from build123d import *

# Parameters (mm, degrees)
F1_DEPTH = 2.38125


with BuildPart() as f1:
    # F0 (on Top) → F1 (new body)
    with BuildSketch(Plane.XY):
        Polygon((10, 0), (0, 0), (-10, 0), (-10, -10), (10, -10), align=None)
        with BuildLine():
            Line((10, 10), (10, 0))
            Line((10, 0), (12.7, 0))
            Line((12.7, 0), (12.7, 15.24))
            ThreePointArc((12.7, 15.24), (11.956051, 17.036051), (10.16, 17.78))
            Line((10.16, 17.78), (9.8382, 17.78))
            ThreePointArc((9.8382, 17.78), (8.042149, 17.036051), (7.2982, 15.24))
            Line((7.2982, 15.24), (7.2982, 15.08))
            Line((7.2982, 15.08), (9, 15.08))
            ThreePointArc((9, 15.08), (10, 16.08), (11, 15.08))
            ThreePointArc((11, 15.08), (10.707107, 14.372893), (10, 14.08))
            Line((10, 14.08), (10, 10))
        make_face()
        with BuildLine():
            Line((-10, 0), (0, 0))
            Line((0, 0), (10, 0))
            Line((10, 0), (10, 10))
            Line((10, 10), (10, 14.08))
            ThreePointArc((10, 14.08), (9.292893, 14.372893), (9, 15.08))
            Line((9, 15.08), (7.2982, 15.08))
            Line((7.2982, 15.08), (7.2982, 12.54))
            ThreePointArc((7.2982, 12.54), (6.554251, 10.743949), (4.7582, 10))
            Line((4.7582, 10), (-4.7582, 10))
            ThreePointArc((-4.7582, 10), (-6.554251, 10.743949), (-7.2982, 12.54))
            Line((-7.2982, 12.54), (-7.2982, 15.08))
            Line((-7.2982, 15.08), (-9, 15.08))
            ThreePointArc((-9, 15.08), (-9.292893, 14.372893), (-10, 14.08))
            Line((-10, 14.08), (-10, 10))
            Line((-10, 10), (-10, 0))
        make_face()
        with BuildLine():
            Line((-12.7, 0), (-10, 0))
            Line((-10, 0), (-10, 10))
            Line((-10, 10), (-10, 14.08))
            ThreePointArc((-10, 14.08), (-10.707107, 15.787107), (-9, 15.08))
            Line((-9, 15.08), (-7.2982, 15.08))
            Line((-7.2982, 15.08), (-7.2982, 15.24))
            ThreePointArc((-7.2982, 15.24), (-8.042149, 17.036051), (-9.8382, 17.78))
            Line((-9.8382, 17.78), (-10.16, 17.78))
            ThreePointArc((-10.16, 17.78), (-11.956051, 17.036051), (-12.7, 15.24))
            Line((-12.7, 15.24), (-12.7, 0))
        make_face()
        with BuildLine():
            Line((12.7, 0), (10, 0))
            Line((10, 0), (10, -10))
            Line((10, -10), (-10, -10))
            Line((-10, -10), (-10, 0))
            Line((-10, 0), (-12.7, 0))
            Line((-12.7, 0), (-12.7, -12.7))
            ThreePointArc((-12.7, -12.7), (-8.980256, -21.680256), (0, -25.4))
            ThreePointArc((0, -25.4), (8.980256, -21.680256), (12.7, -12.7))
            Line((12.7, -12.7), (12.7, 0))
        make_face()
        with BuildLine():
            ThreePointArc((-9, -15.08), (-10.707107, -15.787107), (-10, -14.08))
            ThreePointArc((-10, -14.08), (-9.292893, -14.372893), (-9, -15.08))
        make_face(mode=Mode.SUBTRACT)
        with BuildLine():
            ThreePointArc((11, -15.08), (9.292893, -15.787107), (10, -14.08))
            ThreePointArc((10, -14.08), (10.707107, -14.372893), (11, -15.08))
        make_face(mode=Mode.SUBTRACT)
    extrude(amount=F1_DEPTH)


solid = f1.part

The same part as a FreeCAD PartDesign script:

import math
import FreeCAD as App
import Part
import Sketcher
Q = App.Units.Quantity

doc = App.newDocument("Part")
body = doc.addObject("PartDesign::Body", "Body")

sketch1 = doc.addObject("Sketcher::SketchObject", "Sketch")
body.addObject(sketch1)
sketch1.AttachmentSupport = (doc.XY_Plane, [""])
sketch1.MapMode = "FlatFace"
sketch1.addGeometry([
    Part.ArcOfCircle(Part.Circle(App.Vector(10.16, 15.24, 0), App.Vector(0, 0, 1), 2.54), math.radians(0), math.radians(90)),
    Part.LineSegment(App.Vector(10.16, 17.78, 0), App.Vector(9.84, 17.78, 0)),
    Part.ArcOfCircle(Part.Circle(App.Vector(9.84, 15.24, 0), App.Vector(0, 0, 1), 2.54), math.radians(90), math.radians(180)),
    Part.LineSegment(App.Vector(7.3, 15.24, 0), App.Vector(7.3, 12.54, 0)),
    Part.ArcOfCircle(Part.Circle(App.Vector(4.76, 12.54, 0), App.Vector(0, 0, 1), 2.54), math.radians(-90), math.radians(0)),
    Part.LineSegment(App.Vector(4.76, 10, 0), App.Vector(-4.76, 10, 0)),
    Part.ArcOfCircle(Part.Circle(App.Vector(-4.76, 12.54, 0), App.Vector(0, 0, 1), 2.54), math.radians(-180), math.radians(-90)),
    Part.LineSegment(App.Vector(-7.3, 12.54, 0), App.Vector(-7.3, 15.24, 0)),
    Part.ArcOfCircle(Part.Circle(App.Vector(-9.84, 15.24, 0), App.Vector(0, 0, 1), 2.54), math.radians(0), math.radians(90)),
    Part.LineSegment(App.Vector(-9.84, 17.78, 0), App.Vector(-10.16, 17.78, 0)),
    Part.ArcOfCircle(Part.Circle(App.Vector(-10.16, 15.24, 0), App.Vector(0, 0, 1), 2.54), math.radians(90), math.radians(180)),
    Part.LineSegment(App.Vector(-12.7, 15.24, 0), App.Vector(-12.7, -12.7, 0)),
    Part.ArcOfCircle(Part.Circle(App.Vector(0, -12.7, 0), App.Vector(0, 0, 1), 12.7), math.radians(-180), math.radians(-90)),
    Part.ArcOfCircle(Part.Circle(App.Vector(0, -12.7, 0), App.Vector(0, 0, 1), 12.7), math.radians(-90), math.radians(0)),
    Part.LineSegment(App.Vector(12.7, -12.7, 0), App.Vector(12.7, 15.24, 0)),
    Part.ArcOfCircle(Part.Circle(App.Vector(-10, -15.08, 0), App.Vector(0, 0, 1), 1), math.radians(0), math.radians(90)),
    Part.ArcOfCircle(Part.Circle(App.Vector(-10, -15.08, 0), App.Vector(0, 0, 1), 1), math.radians(90), math.radians(360)),
    Part.ArcOfCircle(Part.Circle(App.Vector(10, -15.08, 0), App.Vector(0, 0, 1), 1), math.radians(0), math.radians(90)),
    Part.ArcOfCircle(Part.Circle(App.Vector(10, -15.08, 0), App.Vector(0, 0, 1), 1), math.radians(90), math.radians(360)),
    Part.ArcOfCircle(Part.Circle(App.Vector(-10, 15.08, 0), App.Vector(0, 0, 1), 1), math.radians(-90), math.radians(0)),
    Part.ArcOfCircle(Part.Circle(App.Vector(-10, 15.08, 0), App.Vector(0, 0, 1), 1), math.radians(0), math.radians(270)),
    Part.ArcOfCircle(Part.Circle(App.Vector(10, 15.08, 0), App.Vector(0, 0, 1), 1), math.radians(180), math.radians(270)),
    Part.ArcOfCircle(Part.Circle(App.Vector(10, 15.08, 0), App.Vector(0, 0, 1), 1), math.radians(0), math.radians(180)),
    Part.ArcOfCircle(Part.Circle(App.Vector(10, 15.08, 0), App.Vector(0, 0, 1), 1), math.radians(-90), math.radians(0)),
], False)
sketch1.addConstraint([
    Sketcher.Constraint("Tangent", 0, 2, 1, 1),
    Sketcher.Constraint("Tangent", 1, 2, 2, 1),
    Sketcher.Constraint("Tangent", 2, 2, 3, 1),
    Sketcher.Constraint("Tangent", 3, 2, 4, 2),
    Sketcher.Constraint("Tangent", 4, 1, 5, 1),
    Sketcher.Constraint("Tangent", 5, 2, 6, 2),
    Sketcher.Constraint("Tangent", 6, 1, 7, 1),
    Sketcher.Constraint("Tangent", 7, 2, 8, 1),
    Sketcher.Constraint("Tangent", 8, 2, 9, 1),
    Sketcher.Constraint("Tangent", 9, 2, 10, 1),
    Sketcher.Constraint("Tangent", 10, 2, 11, 1),
    Sketcher.Constraint("Tangent", 11, 2, 12, 1),
    Sketcher.Constraint("Tangent", 12, 2, 13, 1),
    Sketcher.Constraint("Tangent", 13, 2, 14, 1),
    Sketcher.Constraint("Tangent", 14, 2, 0, 1),
    Sketcher.Constraint("Tangent", 15, 1, 16, 2),
    Sketcher.Constraint("Coincident", 16, 1, 15, 2),
    Sketcher.Constraint("Tangent", 17, 1, 18, 2),
    Sketcher.Constraint("Coincident", 18, 1, 17, 2),
    Sketcher.Constraint("Tangent", 19, 1, 20, 2),
    Sketcher.Constraint("Coincident", 20, 1, 19, 2),
    Sketcher.Constraint("Tangent", 21, 1, 22, 2),
    Sketcher.Constraint("Tangent", 22, 1, 23, 2),
    Sketcher.Constraint("Tangent", 23, 1, 21, 2),
    Sketcher.Constraint("Horizontal", 1),
    Sketcher.Constraint("Vertical", 3),
    Sketcher.Constraint("Horizontal", 5),
    Sketcher.Constraint("Vertical", 7),
    Sketcher.Constraint("Horizontal", 9),
    Sketcher.Constraint("Vertical", 11),
    Sketcher.Constraint("Vertical", 14),
    Sketcher.Constraint("Equal", 0, 2),
    Sketcher.Constraint("Equal", 2, 4),
    Sketcher.Constraint("Equal", 4, 6),
    Sketcher.Constraint("Equal", 6, 8),
    Sketcher.Constraint("Equal", 8, 10),
    Sketcher.Constraint("Equal", 12, 13),
    Sketcher.Constraint("Equal", 16, 17),
    Sketcher.Constraint("Equal", 18, 19),
    Sketcher.Constraint("Equal", 20, 21),
    Sketcher.Constraint("Symmetric", 17, 3, 19, 3, -1, 1),
    Sketcher.Constraint("Symmetric", 15, 3, 21, 3, -1, 1),
    Sketcher.Constraint("Symmetric", 2, 3, 8, 3, -2),
    Sketcher.Constraint("Symmetric", 15, 3, 17, 3, -2),
    Sketcher.Constraint("PointOnObject", 12, 3, -2),
    Sketcher.Constraint("PointOnObject", 12, 2, -2),
    Sketcher.Constraint("Horizontal", 18, 3, 15, 1),
    Sketcher.Constraint("Horizontal", 15, 1, 17, 1),
    Sketcher.Constraint("Horizontal", 23, 3, 20, 1),
    Sketcher.Constraint("Horizontal", 20, 1, 21, 1),
    Sketcher.Constraint("Horizontal", 21, 1, 22, 1),
    Sketcher.Constraint("Vertical", 20, 3, 16, 1),
    Sketcher.Constraint("Vertical", 23, 3, 18, 1),
    Sketcher.Constraint("Vertical", 16, 1, 19, 1),
    Sketcher.Constraint("Vertical", 18, 1, 23, 1),
    Sketcher.Constraint("Radius", 0, Q("0.1 in")),
    Sketcher.Constraint("Radius", 12, Q("0.5 in")),
    Sketcher.Constraint("DistanceY", 11, 2, 11, 1, Q("1.1 in")),
    Sketcher.Constraint("DistanceY", 12, 2, -1, 1, Q("1 in")),
    Sketcher.Constraint("DistanceY", 6, 3, 19, 3, Q("0.0999999 in")),
    Sketcher.Constraint("Radius", 15, 0.999999),
    Sketcher.Constraint("DistanceX", 8, 3, 20, 1, Q("0.033 in")),
    Sketcher.Constraint("DistanceX", 1, 2, 1, 1, 0.3218),
    Sketcher.Constraint("DistanceY", 3, 2, 3, 1, 2.7),
])
pad1 = doc.addObject("PartDesign::Pad", "Pad")
body.addObject(pad1)
pad1.Profile = sketch1
pad1.Length = Q("0.09375 in")

doc.recompute()
